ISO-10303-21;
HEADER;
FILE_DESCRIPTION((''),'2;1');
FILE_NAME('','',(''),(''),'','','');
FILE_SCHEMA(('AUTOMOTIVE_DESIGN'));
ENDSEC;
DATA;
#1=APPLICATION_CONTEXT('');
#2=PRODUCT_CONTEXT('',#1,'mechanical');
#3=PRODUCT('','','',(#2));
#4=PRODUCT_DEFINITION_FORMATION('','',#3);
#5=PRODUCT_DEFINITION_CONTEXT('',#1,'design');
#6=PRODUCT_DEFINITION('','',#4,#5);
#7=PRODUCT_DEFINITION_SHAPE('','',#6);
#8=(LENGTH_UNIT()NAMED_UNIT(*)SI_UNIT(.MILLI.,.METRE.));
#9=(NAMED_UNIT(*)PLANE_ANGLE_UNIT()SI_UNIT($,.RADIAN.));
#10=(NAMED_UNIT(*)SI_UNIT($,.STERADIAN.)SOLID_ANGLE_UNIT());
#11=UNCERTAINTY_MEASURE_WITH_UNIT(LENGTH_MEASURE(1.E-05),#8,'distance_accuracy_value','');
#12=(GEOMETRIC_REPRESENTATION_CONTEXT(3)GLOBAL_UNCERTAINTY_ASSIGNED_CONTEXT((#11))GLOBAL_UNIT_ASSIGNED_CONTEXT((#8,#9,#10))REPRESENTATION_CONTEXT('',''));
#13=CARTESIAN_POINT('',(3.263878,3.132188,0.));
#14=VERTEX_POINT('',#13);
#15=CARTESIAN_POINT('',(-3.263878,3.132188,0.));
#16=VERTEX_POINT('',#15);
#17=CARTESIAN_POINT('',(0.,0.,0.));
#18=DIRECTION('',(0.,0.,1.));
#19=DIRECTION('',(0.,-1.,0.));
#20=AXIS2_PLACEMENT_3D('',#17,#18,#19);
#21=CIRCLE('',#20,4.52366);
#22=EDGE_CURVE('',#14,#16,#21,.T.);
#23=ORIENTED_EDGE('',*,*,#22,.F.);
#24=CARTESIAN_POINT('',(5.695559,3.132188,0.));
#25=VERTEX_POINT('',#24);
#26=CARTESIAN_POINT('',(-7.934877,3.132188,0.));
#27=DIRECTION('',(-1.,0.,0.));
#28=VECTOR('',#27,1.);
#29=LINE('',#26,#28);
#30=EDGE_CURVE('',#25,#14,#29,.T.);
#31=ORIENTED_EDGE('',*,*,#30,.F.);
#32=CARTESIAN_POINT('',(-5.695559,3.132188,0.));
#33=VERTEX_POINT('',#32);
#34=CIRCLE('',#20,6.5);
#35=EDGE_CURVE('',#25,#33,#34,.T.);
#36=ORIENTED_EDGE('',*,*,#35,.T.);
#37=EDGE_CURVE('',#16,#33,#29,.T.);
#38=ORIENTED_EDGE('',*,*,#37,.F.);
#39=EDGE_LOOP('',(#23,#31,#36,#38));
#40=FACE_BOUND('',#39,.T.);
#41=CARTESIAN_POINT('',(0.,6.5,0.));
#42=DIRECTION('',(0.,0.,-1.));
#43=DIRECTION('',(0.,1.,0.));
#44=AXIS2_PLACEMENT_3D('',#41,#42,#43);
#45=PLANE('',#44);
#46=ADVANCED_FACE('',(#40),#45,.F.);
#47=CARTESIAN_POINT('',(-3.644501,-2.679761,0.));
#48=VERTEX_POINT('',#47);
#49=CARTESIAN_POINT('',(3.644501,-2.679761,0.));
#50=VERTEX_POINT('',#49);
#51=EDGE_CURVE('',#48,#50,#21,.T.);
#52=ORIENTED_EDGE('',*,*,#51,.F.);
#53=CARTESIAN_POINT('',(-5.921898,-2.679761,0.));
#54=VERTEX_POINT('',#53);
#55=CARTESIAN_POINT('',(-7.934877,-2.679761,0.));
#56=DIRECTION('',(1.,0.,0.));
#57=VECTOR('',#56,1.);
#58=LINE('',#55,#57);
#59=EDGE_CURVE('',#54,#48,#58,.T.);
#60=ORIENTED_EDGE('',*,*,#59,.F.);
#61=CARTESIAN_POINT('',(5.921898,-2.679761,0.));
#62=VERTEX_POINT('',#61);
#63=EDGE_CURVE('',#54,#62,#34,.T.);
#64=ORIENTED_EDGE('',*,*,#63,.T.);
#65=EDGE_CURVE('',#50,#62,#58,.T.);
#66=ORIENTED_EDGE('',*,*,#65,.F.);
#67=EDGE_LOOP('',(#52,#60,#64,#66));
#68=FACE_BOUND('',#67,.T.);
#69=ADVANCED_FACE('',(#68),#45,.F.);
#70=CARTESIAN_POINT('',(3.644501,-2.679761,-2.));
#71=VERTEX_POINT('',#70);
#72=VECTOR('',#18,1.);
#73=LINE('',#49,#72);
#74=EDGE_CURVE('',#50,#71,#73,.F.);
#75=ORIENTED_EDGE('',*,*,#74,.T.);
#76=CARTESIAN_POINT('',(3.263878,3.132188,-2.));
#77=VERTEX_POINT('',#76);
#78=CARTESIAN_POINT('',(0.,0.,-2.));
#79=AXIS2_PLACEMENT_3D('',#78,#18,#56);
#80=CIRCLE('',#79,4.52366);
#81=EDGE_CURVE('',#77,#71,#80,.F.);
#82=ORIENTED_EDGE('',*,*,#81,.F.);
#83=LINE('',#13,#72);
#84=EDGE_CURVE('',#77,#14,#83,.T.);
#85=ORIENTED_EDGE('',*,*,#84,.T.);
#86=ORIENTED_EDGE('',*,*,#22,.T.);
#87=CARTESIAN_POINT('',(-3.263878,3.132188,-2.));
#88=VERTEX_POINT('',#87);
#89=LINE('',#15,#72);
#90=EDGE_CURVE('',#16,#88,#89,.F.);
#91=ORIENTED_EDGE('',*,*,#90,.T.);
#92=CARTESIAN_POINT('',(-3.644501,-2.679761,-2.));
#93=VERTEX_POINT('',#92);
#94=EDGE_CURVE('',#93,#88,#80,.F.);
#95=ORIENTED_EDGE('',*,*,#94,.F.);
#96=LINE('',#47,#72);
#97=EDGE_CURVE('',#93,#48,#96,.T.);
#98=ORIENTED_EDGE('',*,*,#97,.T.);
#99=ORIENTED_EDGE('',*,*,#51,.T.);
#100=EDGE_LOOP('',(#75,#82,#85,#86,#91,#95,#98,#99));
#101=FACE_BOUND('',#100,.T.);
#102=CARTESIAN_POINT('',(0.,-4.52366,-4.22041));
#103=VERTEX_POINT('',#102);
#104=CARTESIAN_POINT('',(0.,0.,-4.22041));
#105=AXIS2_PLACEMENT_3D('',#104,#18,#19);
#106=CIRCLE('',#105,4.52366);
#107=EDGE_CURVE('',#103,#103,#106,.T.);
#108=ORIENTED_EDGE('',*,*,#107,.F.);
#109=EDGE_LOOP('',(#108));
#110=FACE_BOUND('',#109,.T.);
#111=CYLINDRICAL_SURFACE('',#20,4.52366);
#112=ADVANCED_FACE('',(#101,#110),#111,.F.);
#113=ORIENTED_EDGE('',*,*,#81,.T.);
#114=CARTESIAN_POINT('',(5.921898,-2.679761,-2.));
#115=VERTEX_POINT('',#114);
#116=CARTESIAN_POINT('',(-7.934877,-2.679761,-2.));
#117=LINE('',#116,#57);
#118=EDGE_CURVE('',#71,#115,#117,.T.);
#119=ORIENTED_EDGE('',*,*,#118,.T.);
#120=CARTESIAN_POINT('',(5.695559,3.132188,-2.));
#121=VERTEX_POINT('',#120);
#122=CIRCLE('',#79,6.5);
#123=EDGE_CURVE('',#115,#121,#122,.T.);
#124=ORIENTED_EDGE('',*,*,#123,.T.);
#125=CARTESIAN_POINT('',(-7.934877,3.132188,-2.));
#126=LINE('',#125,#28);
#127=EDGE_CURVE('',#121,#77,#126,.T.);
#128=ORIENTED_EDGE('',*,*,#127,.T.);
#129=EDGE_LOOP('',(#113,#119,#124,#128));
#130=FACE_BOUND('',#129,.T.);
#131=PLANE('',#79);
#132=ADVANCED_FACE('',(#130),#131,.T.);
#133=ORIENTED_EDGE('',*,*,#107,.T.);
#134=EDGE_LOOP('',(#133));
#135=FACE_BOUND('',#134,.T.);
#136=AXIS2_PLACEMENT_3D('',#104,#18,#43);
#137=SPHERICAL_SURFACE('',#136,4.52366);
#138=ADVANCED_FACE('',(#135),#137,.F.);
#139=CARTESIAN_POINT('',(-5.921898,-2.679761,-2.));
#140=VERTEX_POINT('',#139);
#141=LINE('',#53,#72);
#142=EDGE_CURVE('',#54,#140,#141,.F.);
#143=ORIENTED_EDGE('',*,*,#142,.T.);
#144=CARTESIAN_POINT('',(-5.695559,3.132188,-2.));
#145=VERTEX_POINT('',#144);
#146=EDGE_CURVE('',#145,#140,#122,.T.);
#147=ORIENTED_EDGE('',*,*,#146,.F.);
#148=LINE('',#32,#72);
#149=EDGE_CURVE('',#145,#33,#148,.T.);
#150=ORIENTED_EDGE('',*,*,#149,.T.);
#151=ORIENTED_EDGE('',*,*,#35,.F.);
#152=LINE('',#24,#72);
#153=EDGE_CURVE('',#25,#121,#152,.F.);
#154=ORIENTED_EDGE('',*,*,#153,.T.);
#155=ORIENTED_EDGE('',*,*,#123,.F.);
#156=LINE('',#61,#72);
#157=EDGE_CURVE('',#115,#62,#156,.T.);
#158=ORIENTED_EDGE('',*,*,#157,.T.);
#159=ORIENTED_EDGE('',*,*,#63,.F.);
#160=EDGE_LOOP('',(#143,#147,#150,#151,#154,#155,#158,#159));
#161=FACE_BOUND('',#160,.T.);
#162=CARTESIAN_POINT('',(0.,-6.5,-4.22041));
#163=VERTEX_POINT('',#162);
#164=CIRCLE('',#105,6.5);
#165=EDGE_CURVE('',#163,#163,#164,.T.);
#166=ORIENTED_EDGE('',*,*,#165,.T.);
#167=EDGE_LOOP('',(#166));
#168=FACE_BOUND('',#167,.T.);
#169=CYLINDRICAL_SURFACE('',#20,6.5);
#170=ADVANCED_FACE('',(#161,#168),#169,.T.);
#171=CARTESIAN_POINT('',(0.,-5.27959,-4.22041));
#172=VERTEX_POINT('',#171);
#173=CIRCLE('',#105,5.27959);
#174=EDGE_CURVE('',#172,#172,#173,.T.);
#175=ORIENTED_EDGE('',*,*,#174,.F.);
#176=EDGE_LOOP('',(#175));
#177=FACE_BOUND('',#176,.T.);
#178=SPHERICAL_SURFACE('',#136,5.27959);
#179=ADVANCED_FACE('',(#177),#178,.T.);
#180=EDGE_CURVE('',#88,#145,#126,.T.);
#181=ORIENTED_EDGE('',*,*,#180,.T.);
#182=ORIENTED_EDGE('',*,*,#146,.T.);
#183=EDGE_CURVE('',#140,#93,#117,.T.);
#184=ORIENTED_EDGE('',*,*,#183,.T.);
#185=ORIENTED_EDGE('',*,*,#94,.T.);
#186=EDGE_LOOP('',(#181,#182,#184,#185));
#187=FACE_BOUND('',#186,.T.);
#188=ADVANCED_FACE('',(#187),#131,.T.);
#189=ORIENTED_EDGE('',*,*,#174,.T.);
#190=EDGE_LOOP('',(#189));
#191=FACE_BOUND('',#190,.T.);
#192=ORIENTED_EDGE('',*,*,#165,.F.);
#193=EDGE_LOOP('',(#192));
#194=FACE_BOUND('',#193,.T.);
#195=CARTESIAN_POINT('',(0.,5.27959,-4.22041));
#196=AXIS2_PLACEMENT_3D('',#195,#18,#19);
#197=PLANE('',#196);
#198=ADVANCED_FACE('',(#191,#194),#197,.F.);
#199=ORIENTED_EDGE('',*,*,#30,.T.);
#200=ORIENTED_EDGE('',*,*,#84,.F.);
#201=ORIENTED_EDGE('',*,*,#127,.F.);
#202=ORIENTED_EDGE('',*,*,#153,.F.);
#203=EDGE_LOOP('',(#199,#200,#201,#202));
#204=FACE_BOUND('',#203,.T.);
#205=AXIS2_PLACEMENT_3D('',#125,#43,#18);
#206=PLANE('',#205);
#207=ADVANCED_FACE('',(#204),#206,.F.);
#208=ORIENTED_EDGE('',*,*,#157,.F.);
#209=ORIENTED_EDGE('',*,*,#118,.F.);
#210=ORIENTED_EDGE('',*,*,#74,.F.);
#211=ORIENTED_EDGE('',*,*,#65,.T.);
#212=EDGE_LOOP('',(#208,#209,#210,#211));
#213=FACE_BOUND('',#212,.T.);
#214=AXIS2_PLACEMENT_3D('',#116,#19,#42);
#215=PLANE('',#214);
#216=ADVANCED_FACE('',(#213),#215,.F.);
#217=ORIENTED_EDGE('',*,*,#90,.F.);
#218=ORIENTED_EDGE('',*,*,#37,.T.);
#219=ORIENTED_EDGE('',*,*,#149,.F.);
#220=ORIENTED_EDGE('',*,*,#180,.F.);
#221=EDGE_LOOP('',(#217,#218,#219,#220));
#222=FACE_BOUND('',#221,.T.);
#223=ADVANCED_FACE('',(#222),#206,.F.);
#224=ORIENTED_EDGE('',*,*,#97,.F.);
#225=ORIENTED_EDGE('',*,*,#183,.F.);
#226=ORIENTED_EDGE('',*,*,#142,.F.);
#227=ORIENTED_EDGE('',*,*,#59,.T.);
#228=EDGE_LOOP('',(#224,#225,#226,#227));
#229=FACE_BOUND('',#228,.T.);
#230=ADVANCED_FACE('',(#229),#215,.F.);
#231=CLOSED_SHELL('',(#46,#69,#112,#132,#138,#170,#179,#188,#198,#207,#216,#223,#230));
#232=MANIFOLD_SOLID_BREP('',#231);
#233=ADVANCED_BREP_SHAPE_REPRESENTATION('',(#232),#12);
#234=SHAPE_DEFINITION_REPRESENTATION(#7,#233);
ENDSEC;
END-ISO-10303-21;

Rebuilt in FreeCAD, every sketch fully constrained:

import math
import FreeCAD as App
import Part
import Sketcher

V = App.Vector

doc = App.newDocument("Part")
body = doc.addObject("PartDesign::Body", "Body")

# Sketch on YZ plane
sketch1 = body.newObject("Sketcher::SketchObject", "Sketch")
sketch1.AttachmentSupport = (doc.getObject("YZ_Plane"), [""])
sketch1.MapMode = "FlatFace"
sketch1.addGeometry([
    Part.LineSegment(V(6.5, -4.2, 0), V(6.5, 0, 0)),  # 0
    Part.LineSegment(V(6.5, 0, 0), V(4.5, 0, 0)),  # 1
    Part.LineSegment(V(4.5, 0, 0), V(4.5, -4.2, 0)),  # 2
    Part.ArcOfCircle(Part.Circle(V(0, -4.2, 0), V(0, 0, 1), 4.5), math.radians(-90), math.radians(0)),  # 3
    Part.LineSegment(V(0, -8.7, 0), V(0, -9.5, 0)),  # 4
    Part.ArcOfCircle(Part.Circle(V(0, -4.2, 0), V(0, 0, 1), 5.3), math.radians(-90), math.radians(0)),  # 5
    Part.LineSegment(V(5.3, -4.2, 0), V(6.5, -4.2, 0)),  # 6
], False)
sketch1.addConstraint([
    Sketcher.Constraint("Coincident", 0, 2, 1, 1),
    Sketcher.Constraint("Coincident", 1, 2, 2, 1),
    Sketcher.Constraint("Tangent", 2, 2, 3, 2),
    Sketcher.Constraint("Coincident", 3, 1, 4, 1),
    Sketcher.Constraint("Coincident", 4, 2, 5, 1),
    Sketcher.Constraint("Coincident", 5, 2, 6, 1),
    Sketcher.Constraint("Coincident", 6, 2, 0, 1),
    Sketcher.Constraint("Vertical", 0),
    Sketcher.Constraint("Horizontal", 1),
    Sketcher.Constraint("Vertical", 2),
    Sketcher.Constraint("Vertical", 4),
    Sketcher.Constraint("Horizontal", 6),
    Sketcher.Constraint("Coincident", 5, 3, 3, 3),
    Sketcher.Constraint("PointOnObject", 3, 3, -2),
    Sketcher.Constraint("PointOnObject", 0, 2, -1),
    Sketcher.Constraint("PointOnObject", 3, 1, -2),
    Sketcher.Constraint("Horizontal", 2, 2, 5, 2),
    Sketcher.Constraint("DistanceX", -1, 1, 0, 2, 6.5),
    Sketcher.Constraint("DistanceY", 4, 2, -1, 1, 9.5),
    Sketcher.Constraint("Radius", 3, 4.52366),
    Sketcher.Constraint("Radius", 5, 5.27959),
])
revolution = body.newObject("PartDesign::Revolution", "Revolution")
revolution.Profile = sketch1
revolution.ReferenceAxis = (sketch1, ["V_Axis"])
revolution.Angle = 360

# Sketch on XY plane
sketch2 = body.newObject("Sketcher::SketchObject", "Sketch001")
sketch2.AttachmentSupport = (doc.getObject("XY_Plane"), [""])
sketch2.MapMode = "FlatFace"
sketch2.addGeometry([
    Part.LineSegment(V(-8, 3, 0), V(-8, -3, 0)),
    Part.LineSegment(V(-8, -3, 0), V(8, -3, 0)),
    Part.LineSegment(V(8, -3, 0), V(8, 3, 0)),
    Part.LineSegment(V(8, 3, 0), V(-8, 3, 0)),
], False)
sketch2.addConstraint([
    Sketcher.Constraint("Coincident", 0, 2, 1, 1),
    Sketcher.Constraint("Coincident", 1, 2, 2, 1),
    Sketcher.Constraint("Coincident", 2, 2, 3, 1),
    Sketcher.Constraint("Coincident", 3, 2, 0, 1),
    Sketcher.Constraint("Vertical", 0),
    Sketcher.Constraint("Horizontal", 1),
    Sketcher.Constraint("Vertical", 2),
    Sketcher.Constraint("Horizontal", 3),
    Sketcher.Constraint("DistanceX", 1, 1, 1, 2, 15.99156),
    Sketcher.Constraint("DistanceY", 0, 2, 0, 1, 5.811949),
    Sketcher.Constraint("DistanceY", 0, 2, -1, 1, 2.679761),
    Sketcher.Constraint("DistanceX", 0, 2, -1, 1, 7.934877),
])
pocket1 = body.newObject("PartDesign::Pocket", "Pocket")
pocket1.Profile = sketch2
pocket1.Length = 2

doc.recompute()
